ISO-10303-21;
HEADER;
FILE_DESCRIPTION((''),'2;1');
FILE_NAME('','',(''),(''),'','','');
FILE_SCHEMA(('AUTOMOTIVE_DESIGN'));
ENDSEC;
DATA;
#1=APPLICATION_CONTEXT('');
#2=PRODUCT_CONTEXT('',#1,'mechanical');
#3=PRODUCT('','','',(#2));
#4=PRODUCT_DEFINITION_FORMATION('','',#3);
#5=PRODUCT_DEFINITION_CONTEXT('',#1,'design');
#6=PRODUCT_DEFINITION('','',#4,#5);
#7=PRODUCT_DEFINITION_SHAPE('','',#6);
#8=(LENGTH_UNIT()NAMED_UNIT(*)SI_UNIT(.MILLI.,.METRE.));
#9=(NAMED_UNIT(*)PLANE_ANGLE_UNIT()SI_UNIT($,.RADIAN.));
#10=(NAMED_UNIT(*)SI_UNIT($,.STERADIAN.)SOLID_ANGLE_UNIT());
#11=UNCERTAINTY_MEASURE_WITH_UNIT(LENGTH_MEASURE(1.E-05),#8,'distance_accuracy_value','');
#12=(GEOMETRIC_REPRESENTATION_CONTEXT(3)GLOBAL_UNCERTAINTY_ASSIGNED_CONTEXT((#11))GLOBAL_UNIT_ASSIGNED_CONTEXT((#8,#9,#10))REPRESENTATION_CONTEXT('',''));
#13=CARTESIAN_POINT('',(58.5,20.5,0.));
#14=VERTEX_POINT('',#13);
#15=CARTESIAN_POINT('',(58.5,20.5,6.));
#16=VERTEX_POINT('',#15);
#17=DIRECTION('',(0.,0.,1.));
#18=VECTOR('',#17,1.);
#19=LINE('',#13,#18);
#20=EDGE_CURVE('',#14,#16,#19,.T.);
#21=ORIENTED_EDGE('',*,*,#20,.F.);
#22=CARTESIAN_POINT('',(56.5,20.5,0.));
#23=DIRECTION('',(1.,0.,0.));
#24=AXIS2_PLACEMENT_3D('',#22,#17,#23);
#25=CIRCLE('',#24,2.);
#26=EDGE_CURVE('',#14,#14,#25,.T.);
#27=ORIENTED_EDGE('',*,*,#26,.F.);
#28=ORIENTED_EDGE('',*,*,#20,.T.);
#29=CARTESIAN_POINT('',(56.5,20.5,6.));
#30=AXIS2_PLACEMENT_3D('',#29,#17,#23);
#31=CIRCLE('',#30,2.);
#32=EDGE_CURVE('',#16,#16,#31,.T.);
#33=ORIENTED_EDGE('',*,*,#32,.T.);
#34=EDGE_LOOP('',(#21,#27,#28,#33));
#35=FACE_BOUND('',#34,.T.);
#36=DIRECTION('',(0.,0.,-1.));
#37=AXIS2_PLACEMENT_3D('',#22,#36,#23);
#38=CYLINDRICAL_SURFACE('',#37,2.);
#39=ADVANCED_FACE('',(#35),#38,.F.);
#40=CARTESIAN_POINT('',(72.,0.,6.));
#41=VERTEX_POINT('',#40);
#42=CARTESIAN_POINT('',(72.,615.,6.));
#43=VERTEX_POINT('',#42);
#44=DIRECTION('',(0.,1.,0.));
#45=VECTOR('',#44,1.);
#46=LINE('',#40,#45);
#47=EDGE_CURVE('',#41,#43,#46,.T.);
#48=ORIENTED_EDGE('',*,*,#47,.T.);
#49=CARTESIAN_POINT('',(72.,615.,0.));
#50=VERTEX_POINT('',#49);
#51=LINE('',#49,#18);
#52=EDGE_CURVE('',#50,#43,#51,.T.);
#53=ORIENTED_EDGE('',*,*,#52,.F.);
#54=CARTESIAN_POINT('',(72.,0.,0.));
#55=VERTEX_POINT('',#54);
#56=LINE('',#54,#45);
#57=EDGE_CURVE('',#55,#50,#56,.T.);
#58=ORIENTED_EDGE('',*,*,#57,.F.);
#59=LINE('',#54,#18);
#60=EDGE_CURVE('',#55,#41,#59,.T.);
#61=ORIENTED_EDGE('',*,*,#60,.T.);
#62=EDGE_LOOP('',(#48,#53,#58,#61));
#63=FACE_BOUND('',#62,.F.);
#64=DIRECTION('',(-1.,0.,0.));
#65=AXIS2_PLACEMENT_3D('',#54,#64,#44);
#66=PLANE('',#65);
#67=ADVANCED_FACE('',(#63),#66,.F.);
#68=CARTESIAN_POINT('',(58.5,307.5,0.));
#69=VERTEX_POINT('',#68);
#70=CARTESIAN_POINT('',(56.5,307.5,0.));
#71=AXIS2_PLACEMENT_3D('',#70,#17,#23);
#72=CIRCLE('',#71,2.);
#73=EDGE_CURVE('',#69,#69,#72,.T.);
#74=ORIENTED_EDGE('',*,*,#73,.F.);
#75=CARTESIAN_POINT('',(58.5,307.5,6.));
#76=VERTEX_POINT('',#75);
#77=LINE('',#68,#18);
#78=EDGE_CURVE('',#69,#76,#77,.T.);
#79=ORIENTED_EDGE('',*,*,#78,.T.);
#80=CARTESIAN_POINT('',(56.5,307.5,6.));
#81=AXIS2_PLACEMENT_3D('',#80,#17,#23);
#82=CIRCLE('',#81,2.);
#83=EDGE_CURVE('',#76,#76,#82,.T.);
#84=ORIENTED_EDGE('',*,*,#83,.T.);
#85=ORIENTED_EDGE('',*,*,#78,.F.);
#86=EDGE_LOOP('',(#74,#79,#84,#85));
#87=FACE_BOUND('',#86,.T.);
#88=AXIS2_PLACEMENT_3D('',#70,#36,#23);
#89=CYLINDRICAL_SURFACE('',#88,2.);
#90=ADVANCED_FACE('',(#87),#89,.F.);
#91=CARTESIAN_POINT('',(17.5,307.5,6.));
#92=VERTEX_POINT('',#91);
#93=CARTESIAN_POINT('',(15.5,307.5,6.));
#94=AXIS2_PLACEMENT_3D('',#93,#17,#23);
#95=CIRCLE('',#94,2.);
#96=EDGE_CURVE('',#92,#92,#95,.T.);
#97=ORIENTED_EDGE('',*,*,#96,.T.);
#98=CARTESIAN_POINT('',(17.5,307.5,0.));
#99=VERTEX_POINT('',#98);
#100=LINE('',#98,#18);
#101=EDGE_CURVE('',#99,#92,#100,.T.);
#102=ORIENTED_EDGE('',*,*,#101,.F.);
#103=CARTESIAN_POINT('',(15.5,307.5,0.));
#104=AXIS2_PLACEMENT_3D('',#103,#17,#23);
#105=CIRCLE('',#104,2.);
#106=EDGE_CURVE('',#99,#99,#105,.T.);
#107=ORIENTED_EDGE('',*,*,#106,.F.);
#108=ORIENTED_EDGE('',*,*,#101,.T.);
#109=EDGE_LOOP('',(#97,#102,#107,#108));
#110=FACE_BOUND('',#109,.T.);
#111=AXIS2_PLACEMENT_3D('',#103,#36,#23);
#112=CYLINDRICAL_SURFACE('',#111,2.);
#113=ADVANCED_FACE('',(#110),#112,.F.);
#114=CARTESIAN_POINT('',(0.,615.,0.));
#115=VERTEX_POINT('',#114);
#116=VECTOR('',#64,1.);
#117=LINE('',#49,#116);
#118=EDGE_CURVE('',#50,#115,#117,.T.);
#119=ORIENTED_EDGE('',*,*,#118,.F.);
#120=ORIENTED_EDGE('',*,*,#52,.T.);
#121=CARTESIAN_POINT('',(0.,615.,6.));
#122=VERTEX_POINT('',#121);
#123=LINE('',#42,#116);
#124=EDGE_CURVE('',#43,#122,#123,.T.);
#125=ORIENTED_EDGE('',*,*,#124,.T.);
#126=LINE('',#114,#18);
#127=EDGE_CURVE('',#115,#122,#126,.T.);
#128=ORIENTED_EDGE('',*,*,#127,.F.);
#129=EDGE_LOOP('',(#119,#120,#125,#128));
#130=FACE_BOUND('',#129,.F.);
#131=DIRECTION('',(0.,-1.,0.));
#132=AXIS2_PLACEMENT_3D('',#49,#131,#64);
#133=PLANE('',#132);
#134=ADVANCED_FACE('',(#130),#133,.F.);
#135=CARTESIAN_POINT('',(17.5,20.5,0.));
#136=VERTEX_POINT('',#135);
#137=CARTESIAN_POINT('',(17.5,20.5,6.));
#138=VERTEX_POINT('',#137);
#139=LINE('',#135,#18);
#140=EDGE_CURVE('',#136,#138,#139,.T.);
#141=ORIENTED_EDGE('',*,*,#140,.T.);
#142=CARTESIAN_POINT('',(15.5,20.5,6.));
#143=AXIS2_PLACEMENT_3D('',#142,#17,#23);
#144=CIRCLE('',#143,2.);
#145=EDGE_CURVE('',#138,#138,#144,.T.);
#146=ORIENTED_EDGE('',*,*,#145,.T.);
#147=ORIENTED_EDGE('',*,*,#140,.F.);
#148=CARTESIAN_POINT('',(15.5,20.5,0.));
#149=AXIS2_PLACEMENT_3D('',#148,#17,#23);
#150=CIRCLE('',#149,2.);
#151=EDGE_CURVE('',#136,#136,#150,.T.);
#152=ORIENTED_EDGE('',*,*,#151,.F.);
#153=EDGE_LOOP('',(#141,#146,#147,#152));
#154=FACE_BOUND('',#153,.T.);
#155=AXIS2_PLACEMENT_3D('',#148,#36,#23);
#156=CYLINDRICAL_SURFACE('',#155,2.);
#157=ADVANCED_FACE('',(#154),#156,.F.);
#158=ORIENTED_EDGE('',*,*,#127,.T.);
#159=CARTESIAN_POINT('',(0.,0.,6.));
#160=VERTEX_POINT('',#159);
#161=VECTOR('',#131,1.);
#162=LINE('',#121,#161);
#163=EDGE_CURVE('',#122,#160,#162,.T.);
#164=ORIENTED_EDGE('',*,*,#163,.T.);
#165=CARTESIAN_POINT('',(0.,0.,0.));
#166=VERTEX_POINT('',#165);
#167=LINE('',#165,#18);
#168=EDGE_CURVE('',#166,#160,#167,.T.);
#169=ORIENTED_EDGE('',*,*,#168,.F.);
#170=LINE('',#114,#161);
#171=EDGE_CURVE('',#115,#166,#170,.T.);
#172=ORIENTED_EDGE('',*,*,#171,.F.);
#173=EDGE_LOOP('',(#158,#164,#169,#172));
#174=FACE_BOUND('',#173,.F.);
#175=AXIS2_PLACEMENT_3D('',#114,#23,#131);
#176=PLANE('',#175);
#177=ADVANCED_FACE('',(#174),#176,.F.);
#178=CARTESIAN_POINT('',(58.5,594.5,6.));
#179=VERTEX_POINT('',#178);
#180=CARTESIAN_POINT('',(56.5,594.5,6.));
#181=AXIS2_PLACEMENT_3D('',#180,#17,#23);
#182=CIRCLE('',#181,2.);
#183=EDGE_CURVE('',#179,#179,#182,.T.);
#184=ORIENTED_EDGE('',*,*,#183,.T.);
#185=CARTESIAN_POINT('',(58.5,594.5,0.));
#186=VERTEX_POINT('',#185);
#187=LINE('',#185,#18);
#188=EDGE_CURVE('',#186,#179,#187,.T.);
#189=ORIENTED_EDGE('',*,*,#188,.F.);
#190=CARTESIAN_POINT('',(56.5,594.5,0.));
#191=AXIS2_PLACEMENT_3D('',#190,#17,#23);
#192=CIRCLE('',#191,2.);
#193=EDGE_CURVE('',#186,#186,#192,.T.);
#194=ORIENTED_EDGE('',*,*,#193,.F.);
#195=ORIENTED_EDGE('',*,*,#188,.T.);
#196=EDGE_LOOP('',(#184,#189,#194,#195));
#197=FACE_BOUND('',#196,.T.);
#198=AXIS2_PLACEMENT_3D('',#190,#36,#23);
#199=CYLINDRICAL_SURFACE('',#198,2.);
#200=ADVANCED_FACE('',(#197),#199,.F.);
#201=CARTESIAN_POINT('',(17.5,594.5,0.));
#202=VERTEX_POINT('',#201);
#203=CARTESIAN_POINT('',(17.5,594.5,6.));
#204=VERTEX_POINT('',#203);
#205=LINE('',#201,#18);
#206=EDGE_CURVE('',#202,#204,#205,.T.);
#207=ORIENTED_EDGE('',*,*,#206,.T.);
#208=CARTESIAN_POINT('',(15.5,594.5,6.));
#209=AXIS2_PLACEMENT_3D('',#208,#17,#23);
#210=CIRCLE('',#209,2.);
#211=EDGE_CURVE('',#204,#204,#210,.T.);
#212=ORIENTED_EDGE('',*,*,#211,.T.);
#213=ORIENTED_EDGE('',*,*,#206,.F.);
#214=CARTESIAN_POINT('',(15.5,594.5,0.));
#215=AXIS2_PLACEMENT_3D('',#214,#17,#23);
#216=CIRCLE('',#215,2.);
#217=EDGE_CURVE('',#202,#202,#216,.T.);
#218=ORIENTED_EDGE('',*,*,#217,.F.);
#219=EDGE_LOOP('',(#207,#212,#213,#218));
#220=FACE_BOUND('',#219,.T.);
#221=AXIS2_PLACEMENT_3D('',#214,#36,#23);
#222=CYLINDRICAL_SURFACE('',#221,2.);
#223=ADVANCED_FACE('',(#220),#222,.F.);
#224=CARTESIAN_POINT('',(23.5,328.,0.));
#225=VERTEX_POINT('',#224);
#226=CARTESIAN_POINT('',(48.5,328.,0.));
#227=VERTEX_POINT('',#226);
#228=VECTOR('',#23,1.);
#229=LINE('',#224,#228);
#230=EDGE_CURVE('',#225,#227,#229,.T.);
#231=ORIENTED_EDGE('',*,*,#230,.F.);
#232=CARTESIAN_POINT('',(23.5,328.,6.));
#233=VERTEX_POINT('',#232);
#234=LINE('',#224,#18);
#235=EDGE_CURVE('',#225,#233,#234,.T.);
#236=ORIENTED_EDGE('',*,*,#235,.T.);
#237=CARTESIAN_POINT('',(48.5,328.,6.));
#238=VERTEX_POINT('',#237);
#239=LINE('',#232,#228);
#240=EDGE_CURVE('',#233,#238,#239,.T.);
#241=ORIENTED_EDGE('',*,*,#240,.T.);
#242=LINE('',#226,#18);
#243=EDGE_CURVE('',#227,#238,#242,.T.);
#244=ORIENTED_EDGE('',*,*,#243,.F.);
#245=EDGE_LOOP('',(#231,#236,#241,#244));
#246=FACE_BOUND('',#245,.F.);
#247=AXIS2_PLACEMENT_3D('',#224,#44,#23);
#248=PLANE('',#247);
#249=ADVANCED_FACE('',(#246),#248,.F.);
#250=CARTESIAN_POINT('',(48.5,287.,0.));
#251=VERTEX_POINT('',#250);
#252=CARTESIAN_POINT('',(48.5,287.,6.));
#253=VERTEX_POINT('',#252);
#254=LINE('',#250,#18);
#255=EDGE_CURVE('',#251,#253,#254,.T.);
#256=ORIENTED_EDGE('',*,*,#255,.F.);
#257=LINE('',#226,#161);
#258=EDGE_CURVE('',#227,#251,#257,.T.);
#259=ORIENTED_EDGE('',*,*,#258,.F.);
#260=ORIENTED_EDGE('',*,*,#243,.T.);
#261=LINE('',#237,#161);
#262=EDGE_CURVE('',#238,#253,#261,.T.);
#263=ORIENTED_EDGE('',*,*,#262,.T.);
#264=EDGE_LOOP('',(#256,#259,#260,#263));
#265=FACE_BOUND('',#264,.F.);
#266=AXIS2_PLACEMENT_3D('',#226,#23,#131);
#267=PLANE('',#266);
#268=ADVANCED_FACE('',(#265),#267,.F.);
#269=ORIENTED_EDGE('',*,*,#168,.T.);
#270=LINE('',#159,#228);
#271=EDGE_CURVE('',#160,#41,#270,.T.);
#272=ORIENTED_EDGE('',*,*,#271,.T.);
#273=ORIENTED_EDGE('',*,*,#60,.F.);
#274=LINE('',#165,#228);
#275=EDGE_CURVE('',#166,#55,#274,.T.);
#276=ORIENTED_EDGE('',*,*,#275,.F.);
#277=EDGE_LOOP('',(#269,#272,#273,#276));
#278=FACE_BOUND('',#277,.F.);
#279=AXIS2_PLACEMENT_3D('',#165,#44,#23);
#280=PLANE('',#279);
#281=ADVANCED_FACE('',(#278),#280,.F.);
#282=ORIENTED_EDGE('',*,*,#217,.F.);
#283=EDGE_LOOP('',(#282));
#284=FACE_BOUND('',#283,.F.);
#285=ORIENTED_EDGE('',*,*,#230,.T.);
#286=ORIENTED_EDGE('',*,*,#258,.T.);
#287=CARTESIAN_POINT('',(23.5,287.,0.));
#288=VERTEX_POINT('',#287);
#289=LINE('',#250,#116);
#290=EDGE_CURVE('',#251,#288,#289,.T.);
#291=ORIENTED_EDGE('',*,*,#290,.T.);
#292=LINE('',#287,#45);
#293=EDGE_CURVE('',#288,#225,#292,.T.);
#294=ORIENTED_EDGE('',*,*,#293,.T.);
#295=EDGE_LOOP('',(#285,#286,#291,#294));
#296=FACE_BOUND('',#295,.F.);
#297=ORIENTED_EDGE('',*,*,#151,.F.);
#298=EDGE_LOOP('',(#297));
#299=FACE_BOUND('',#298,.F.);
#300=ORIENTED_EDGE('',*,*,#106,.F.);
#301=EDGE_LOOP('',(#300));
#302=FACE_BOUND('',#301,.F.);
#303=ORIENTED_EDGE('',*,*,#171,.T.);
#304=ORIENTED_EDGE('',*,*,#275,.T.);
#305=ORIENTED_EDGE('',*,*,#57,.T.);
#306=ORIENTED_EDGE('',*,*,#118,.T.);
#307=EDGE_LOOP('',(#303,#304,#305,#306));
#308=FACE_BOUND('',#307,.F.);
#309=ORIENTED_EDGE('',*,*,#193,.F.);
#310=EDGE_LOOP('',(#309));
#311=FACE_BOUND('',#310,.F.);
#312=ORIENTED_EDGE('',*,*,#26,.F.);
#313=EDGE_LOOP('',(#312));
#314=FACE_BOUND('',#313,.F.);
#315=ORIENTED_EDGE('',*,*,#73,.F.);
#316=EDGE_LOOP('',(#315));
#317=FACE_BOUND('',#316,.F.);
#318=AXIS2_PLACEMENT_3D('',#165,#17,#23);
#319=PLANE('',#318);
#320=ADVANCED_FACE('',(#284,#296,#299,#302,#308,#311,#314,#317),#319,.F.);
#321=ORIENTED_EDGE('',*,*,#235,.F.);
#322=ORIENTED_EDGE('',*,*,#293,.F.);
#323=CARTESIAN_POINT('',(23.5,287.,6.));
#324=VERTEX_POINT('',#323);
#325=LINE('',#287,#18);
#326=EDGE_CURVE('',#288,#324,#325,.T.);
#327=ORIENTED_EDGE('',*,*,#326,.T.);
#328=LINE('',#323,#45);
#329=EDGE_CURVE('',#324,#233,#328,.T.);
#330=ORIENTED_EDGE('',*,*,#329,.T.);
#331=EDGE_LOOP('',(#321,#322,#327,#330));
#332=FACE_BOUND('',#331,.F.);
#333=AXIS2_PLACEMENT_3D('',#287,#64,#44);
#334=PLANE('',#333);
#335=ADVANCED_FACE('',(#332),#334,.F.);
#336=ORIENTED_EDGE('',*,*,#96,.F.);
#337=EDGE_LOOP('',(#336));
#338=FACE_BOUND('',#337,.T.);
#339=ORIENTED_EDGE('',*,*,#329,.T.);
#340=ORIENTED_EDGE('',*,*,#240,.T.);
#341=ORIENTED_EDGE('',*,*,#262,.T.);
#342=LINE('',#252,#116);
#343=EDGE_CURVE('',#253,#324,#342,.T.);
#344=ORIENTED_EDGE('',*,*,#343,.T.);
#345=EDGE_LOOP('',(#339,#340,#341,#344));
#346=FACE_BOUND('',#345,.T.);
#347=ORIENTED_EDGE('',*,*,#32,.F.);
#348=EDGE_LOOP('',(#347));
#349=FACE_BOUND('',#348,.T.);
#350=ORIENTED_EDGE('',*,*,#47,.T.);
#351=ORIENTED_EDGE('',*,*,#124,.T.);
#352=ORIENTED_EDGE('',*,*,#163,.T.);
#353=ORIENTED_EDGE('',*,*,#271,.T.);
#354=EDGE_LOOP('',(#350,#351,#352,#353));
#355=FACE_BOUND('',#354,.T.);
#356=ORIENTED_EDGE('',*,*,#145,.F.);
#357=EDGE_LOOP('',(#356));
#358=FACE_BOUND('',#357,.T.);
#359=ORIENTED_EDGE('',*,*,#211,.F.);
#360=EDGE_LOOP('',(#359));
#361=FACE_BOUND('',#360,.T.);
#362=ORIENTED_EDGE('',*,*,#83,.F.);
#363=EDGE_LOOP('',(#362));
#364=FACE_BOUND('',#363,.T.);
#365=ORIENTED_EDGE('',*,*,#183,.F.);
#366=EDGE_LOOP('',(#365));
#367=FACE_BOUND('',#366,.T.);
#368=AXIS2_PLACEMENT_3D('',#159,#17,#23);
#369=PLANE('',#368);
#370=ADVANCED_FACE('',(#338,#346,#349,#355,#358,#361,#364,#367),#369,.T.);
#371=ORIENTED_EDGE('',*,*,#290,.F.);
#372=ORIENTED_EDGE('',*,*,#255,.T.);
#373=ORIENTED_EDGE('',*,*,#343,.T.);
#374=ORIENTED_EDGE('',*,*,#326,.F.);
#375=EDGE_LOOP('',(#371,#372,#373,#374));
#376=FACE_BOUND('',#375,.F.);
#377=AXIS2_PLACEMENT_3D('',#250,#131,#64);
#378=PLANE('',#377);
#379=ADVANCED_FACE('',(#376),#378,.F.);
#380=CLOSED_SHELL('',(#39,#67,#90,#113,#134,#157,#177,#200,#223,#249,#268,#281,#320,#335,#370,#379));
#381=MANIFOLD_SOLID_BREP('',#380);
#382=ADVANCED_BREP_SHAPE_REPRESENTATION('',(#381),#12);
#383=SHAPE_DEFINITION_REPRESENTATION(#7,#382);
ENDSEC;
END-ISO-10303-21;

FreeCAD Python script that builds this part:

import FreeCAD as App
import Part
import Sketcher

V = App.Vector
Q = App.Units.Quantity

doc = App.newDocument("Part")
params = doc.addObject("Spreadsheet::Sheet", "Params")
for row, (alias, value) in enumerate([
    ("sketch1_diameter", "4 mm"),
    ("sketch1_width", "72 mm"),
    ("sketch1_width2", "25 mm"),
    ("sketch1_height", "615 mm"),
    ("sketch1_height2", "41 mm"),
    ("pad1_length", "6 mm"),
], start=1):
    params.set(f"A{row}", alias)
    params.set(f"B{row}", "=" + value)
    params.setAlias(f"B{row}", alias)

body = doc.addObject("PartDesign::Body", "Body")

# Sketch on XY plane
sketch1 = body.newObject("Sketcher::SketchObject", "Sketch")
sketch1.AttachmentSupport = (doc.getObject("XY_Plane"), [""])
sketch1.MapMode = "FlatFace"
sketch1.addGeometry([
    Part.LineSegment(V(0, 615, 0), V(0, 0, 0)),  # 0
    Part.LineSegment(V(0, 0, 0), V(72, 0, 0)),  # 1
    Part.LineSegment(V(72, 0, 0), V(72, 615, 0)),  # 2
    Part.LineSegment(V(72, 615, 0), V(0, 615, 0)),  # 3
    Part.Circle(V(15.5, 20.5, 0), V(0, 0, 1), 2),  # 4
    Part.Circle(V(56.5, 20.5, 0), V(0, 0, 1), 2),  # 5
    Part.Circle(V(15.5, 307.5, 0), V(0, 0, 1), 2),  # 6
    Part.Circle(V(15.5, 594.5, 0), V(0, 0, 1), 2),  # 7
    Part.LineSegment(V(23.5, 287, 0), V(23.5, 328, 0)),  # 8
    Part.LineSegment(V(23.5, 328, 0), V(48.5, 328, 0)),  # 9
    Part.LineSegment(V(48.5, 328, 0), V(48.5, 287, 0)),  # 10
    Part.LineSegment(V(48.5, 287, 0), V(23.5, 287, 0)),  # 11
    Part.Circle(V(56.5, 307.5, 0), V(0, 0, 1), 2),  # 12
    Part.Circle(V(56.5, 594.5, 0), V(0, 0, 1), 2),  # 13
], False)
sketch1.addConstraint([
    Sketcher.Constraint("Coincident", 0, 2, 1, 1),
    Sketcher.Constraint("Coincident", 1, 2, 2, 1),
    Sketcher.Constraint("Coincident", 2, 2, 3, 1),
    Sketcher.Constraint("Coincident", 3, 2, 0, 1),
    Sketcher.Constraint("Coincident", 8, 2, 9, 1),
    Sketcher.Constraint("Coincident", 9, 2, 10, 1),
    Sketcher.Constraint("Coincident", 10, 2, 11, 1),
    Sketcher.Constraint("Coincident", 11, 2, 8, 1),
    Sketcher.Constraint("Vertical", 0),
    Sketcher.Constraint("Horizontal", 1),
    Sketcher.Constraint("Vertical", 2),
    Sketcher.Constraint("Horizontal", 3),
    Sketcher.Constraint("Vertical", 8),
    Sketcher.Constraint("Horizontal", 9),
    Sketcher.Constraint("Vertical", 10),
    Sketcher.Constraint("Horizontal", 11),
    Sketcher.Constraint("Coincident", 0, 2, -1, 1),
    Sketcher.Constraint("Equal", 4, 5),
    Sketcher.Constraint("Equal", 5, 6),
    Sketcher.Constraint("Equal", 6, 7),
    Sketcher.Constraint("Equal", 7, 12),
    Sketcher.Constraint("Equal", 12, 13),
    Sketcher.Constraint("Horizontal", 4, 3, 5, 3),
    Sketcher.Constraint("Horizontal", 6, 3, 12, 3),
    Sketcher.Constraint("Horizontal", 7, 3, 13, 3),
    Sketcher.Constraint("Vertical", 4, 3, 6, 3),
    Sketcher.Constraint("Vertical", 6, 3, 7, 3),
    Sketcher.Constraint("Vertical", 5, 3, 12, 3),
    Sketcher.Constraint("Vertical", 12, 3, 13, 3),
    Sketcher.Constraint("Diameter", 4, Q("4 mm")),
    Sketcher.Constraint("DistanceX", 1, 1, 1, 2, Q("72 mm")),
    Sketcher.Constraint("DistanceX", 9, 1, 9, 2, Q("25 mm")),
    Sketcher.Constraint("DistanceY", 0, 2, 0, 1, Q("615 mm")),
    Sketcher.Constraint("DistanceY", 8, 1, 8, 2, Q("41 mm")),
    Sketcher.Constraint("DistanceX", 4, 3, 5, 3, Q("41 mm")),
    Sketcher.Constraint("DistanceY", -1, 1, 4, 3, Q("20.5 mm")),
    Sketcher.Constraint("DistanceY", 13, 3, 2, 2, Q("20.5 mm")),
    Sketcher.Constraint("DistanceY", 6, 3, 8, 2, Q("20.5 mm")),
    Sketcher.Constraint("DistanceY", -1, 1, 8, 2, Q("328 mm")),
    Sketcher.Constraint("DistanceX", 6, 3, 8, 2, Q("8 mm")),
    Sketcher.Constraint("DistanceX", -1, 1, 4, 3, Q("15.5 mm")),
])
sketch1.setExpression("Constraints[29]", "Params.sketch1_diameter")
sketch1.setExpression("Constraints[30]", "Params.sketch1_width")
sketch1.setExpression("Constraints[31]", "Params.sketch1_width2")
sketch1.setExpression("Constraints[32]", "Params.sketch1_height")
sketch1.setExpression("Constraints[33]", "Params.sketch1_height2")
pad1 = body.newObject("PartDesign::Pad", "Pad")
pad1.Profile = sketch1
pad1.setExpression("Length", "Params.pad1_length")

doc.recompute()
